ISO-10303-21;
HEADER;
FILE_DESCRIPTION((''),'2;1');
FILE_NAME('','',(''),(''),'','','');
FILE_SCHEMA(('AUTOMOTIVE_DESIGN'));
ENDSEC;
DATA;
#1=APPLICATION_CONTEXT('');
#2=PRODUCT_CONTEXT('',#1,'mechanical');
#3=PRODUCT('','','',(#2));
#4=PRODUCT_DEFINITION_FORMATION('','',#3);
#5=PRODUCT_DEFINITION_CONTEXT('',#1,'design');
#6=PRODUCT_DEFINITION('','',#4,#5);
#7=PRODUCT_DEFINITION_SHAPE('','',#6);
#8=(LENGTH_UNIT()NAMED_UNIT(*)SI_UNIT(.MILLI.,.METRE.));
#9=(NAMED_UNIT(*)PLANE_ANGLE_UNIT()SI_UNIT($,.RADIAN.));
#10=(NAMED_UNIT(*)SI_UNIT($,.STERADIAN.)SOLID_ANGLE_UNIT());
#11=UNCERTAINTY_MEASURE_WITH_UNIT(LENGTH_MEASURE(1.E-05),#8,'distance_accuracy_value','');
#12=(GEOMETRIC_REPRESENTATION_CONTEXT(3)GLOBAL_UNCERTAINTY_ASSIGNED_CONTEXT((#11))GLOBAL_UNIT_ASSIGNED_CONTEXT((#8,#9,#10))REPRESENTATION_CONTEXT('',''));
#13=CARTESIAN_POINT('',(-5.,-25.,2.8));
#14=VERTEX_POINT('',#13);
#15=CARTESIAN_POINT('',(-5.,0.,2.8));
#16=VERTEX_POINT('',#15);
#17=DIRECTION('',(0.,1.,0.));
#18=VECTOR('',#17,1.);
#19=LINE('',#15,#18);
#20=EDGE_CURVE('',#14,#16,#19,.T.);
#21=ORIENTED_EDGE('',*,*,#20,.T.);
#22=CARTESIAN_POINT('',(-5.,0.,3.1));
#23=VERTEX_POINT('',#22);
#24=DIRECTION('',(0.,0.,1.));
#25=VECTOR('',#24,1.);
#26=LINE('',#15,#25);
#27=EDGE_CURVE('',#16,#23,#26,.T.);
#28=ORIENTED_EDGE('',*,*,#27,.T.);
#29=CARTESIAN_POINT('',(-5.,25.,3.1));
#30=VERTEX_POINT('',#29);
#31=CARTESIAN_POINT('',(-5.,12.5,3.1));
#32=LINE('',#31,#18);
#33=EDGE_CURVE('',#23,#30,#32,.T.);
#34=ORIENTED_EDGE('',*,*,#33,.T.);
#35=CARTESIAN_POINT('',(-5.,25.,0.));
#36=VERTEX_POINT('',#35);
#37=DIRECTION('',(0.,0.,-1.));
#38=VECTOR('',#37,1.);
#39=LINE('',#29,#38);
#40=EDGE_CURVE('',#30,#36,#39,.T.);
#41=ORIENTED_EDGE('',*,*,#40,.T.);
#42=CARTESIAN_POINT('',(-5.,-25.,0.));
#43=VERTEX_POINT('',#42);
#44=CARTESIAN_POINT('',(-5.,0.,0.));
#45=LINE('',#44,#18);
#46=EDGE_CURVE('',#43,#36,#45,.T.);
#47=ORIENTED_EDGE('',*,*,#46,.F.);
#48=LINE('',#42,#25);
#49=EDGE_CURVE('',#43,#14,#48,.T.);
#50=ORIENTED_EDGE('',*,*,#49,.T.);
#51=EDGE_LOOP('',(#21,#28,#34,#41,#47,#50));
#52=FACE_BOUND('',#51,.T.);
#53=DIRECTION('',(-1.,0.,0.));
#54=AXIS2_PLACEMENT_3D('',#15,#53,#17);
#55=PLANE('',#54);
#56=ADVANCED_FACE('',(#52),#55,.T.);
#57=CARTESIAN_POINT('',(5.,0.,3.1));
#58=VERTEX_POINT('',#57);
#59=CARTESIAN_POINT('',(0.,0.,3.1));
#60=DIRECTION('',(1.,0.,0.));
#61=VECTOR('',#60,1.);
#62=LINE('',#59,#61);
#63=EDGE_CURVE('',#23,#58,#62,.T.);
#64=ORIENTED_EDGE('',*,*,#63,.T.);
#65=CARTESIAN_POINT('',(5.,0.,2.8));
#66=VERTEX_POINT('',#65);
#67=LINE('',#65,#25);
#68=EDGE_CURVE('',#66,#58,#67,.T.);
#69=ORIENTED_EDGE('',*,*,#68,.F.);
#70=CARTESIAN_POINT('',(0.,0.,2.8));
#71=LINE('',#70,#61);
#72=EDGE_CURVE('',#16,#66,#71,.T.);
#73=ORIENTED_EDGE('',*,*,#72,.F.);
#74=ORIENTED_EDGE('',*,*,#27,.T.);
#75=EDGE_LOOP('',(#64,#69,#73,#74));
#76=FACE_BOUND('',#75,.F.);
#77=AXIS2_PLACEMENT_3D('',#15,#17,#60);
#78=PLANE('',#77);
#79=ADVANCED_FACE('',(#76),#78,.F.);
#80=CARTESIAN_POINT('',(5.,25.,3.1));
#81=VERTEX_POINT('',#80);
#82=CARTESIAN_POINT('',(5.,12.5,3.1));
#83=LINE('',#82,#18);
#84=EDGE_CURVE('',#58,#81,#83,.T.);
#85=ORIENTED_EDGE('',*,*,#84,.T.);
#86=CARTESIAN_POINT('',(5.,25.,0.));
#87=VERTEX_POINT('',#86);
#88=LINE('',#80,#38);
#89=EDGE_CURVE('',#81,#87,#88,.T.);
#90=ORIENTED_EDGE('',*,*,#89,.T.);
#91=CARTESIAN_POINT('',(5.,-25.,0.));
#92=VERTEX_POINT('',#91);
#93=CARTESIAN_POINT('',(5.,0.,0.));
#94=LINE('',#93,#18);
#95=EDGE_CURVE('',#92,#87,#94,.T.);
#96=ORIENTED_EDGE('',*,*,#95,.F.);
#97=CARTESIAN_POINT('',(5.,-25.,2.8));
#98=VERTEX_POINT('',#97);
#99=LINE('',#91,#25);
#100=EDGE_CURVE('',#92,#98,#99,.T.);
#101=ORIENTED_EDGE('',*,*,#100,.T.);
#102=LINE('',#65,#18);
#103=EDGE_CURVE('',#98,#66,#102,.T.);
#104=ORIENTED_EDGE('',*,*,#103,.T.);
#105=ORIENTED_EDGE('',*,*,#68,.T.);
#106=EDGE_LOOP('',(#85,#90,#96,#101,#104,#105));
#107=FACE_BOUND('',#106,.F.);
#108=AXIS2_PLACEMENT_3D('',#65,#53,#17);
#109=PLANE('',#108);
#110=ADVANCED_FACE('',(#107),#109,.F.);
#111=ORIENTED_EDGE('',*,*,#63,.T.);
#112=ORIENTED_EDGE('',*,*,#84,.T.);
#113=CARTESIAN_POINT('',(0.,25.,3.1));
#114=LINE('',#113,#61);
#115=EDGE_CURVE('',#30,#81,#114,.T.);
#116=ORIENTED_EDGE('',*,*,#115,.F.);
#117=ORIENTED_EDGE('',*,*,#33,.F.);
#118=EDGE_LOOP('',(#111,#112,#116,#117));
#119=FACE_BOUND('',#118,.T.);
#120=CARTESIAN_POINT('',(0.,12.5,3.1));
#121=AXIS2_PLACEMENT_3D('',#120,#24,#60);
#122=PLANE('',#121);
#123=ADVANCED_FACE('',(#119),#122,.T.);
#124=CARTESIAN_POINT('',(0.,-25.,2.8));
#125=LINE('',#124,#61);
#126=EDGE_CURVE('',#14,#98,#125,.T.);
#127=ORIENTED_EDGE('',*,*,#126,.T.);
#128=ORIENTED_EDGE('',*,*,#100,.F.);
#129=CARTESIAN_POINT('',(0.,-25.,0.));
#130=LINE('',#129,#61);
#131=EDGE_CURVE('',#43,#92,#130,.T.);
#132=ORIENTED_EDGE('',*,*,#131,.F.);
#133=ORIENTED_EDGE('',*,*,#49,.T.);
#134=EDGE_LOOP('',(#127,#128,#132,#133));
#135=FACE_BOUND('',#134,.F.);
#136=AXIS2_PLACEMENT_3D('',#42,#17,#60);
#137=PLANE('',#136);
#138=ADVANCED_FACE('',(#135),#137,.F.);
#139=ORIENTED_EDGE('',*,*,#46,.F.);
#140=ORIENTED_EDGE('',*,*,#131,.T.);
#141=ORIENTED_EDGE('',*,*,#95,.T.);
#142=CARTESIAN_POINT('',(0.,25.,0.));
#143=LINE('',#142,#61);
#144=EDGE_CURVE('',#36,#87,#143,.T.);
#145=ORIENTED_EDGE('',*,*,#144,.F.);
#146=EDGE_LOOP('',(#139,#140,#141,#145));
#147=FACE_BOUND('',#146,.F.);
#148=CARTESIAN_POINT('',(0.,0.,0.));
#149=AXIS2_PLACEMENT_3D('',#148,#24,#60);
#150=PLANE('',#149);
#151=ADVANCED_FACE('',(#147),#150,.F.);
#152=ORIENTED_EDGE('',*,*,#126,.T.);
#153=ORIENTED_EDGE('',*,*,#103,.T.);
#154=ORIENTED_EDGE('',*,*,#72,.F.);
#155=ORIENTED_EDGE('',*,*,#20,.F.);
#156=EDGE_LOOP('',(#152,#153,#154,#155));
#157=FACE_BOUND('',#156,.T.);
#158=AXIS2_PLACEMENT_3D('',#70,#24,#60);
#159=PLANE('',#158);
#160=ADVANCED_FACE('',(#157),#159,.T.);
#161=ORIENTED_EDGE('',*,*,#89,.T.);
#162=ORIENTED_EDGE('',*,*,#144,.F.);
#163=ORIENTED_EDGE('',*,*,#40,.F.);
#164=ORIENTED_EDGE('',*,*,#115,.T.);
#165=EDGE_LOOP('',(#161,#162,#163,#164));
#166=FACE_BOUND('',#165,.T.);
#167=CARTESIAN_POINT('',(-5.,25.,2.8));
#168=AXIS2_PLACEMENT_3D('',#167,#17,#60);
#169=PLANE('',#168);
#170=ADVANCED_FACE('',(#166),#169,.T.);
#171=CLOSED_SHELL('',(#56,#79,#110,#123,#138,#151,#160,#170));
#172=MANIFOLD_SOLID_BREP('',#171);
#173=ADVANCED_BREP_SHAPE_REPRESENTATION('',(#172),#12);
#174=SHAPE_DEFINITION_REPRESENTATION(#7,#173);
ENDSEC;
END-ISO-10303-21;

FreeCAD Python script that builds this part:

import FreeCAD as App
import Part
import Sketcher
from FreeCAD import Vector
Q = App.Units.Quantity

doc = App.newDocument("Part")
body = doc.addObject("PartDesign::Body", "Body")

sketch1 = body.newObject("Sketcher::SketchObject", "Sketch")
sketch1.AttachmentSupport = (doc.getObject("XY_Plane"), [""])
sketch1.MapMode = "FlatFace"
sketch1.addGeometry([
    Part.LineSegment(Vector(-5, 25, 0), Vector(-5, -25, 0)),
    Part.LineSegment(Vector(-5, -25, 0), Vector(5, -25, 0)),
    Part.LineSegment(Vector(5, -25, 0), Vector(5, 25, 0)),
    Part.LineSegment(Vector(5, 25, 0), Vector(-5, 25, 0)),
], False)
sketch1.addConstraint([
    Sketcher.Constraint("Coincident", 0, 2, 1, 1),
    Sketcher.Constraint("Coincident", 1, 2, 2, 1),
    Sketcher.Constraint("Coincident", 2, 2, 3, 1),
    Sketcher.Constraint("Coincident", 3, 2, 0, 1),
    Sketcher.Constraint("Vertical", 0),
    Sketcher.Constraint("Horizontal", 1),
    Sketcher.Constraint("Vertical", 2),
    Sketcher.Constraint("Horizontal", 3),
    Sketcher.Constraint("Symmetric", 0, 2, 2, 2, -1, 1),
    Sketcher.Constraint("DistanceX", 1, 1, 1, 2, Q("10 mm")),
    Sketcher.Constraint("DistanceY", 0, 2, 0, 1, Q("50 mm")),
])
pad1 = body.newObject("PartDesign::Pad", "Pad")
pad1.Profile = sketch1
pad1.Length = 2.8

sketch2 = body.newObject("Sketcher::SketchObject", "Sketch001")
sketch2.AttachmentSupport = (doc.getObject("XY_Plane"), [""])
sketch2.MapMode = "FlatFace"
sketch2.AttachmentOffset = App.Placement(Vector(0, 0, 2.8), App.Rotation())
sketch2.addGeometry([
    Part.LineSegment(Vector(-5, 25, 0), Vector(-5, 0, 0)),
    Part.LineSegment(Vector(-5, 0, 0), Vector(5, 0, 0)),
    Part.LineSegment(Vector(5, 0, 0), Vector(5, 25, 0)),
    Part.LineSegment(Vector(5, 25, 0), Vector(-5, 25, 0)),
], False)
sketch2.addConstraint([
    Sketcher.Constraint("Coincident", 0, 2, 1, 1),
    Sketcher.Constraint("Coincident", 1, 2, 2, 1),
    Sketcher.Constraint("Coincident", 2, 2, 3, 1),
    Sketcher.Constraint("Coincident", 3, 2, 0, 1),
    Sketcher.Constraint("Vertical", 0),
    Sketcher.Constraint("Horizontal", 1),
    Sketcher.Constraint("Vertical", 2),
    Sketcher.Constraint("Horizontal", 3),
    Sketcher.Constraint("Symmetric", 0, 2, 1, 2, -1, 1),
    Sketcher.Constraint("DistanceX", 1, 1, 1, 2, Q("10 mm")),
    Sketcher.Constraint("DistanceY", 0, 2, 0, 1, Q("25 mm")),
])
pad2 = body.newObject("PartDesign::Pad", "Pad001")
pad2.Profile = sketch2
pad2.Length = 0.3

doc.recompute()
